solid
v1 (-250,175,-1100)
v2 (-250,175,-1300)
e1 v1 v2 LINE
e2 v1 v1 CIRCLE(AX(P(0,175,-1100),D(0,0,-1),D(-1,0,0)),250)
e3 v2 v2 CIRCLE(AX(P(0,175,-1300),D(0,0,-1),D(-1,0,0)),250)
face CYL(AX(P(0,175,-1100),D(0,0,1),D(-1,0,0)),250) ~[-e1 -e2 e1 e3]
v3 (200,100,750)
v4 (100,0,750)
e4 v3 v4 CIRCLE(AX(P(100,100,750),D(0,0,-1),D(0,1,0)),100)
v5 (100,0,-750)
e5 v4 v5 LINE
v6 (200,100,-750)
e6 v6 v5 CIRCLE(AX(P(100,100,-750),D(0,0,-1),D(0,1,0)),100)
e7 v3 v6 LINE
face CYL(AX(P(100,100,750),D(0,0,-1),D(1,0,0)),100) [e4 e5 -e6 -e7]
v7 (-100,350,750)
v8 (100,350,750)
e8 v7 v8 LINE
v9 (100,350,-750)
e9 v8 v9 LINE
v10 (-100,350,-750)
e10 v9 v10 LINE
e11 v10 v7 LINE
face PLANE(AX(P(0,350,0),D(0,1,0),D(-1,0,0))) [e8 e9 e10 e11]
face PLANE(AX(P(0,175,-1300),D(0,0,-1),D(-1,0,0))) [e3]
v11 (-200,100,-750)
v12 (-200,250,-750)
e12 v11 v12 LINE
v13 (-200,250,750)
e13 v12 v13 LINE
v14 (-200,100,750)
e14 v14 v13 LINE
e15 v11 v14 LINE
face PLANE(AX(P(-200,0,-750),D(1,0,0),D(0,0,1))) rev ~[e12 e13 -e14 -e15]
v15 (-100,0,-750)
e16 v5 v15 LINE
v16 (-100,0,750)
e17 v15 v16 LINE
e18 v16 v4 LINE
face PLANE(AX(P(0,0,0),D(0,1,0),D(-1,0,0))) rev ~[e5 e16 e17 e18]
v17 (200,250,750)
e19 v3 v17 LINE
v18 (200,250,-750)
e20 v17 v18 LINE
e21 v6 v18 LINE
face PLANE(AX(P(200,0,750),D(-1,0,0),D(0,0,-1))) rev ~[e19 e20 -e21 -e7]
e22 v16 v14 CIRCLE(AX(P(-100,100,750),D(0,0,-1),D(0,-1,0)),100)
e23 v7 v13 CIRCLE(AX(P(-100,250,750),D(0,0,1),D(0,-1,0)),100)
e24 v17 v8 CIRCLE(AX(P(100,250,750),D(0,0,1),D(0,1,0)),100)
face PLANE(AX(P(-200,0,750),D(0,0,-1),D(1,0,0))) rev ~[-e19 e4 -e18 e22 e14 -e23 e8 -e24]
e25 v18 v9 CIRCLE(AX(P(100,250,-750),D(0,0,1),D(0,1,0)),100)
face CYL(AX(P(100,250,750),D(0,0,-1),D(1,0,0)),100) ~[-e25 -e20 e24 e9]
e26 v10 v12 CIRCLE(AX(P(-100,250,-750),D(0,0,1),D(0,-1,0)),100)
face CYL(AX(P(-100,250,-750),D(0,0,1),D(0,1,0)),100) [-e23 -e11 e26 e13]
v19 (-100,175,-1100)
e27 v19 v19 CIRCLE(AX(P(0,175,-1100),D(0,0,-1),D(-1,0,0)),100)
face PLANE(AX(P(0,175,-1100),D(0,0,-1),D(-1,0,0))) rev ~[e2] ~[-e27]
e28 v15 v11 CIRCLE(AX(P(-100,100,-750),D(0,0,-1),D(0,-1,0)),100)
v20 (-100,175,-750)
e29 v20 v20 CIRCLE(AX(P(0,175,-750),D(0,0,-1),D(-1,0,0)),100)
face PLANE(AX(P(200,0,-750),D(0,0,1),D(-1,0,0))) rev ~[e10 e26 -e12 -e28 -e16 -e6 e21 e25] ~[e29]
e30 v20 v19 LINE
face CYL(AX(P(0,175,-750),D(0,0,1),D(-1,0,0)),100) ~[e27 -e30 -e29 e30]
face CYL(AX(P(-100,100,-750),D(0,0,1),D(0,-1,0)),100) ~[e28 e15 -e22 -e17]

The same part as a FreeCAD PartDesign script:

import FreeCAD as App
import Part
import Sketcher
from FreeCAD import Vector
Q = App.Units.Quantity


def edges_at(feature, points):
    """Names of the edges that pass closest to the given points."""
    edges = feature.Shape.Edges
    near = lambda p: min(range(len(edges)), key=lambda i: edges[i].distToShape(Part.Vertex(*p))[0])
    return sorted({f"Edge{near(p) + 1}" for p in points})


def add_polygon(sketch, points):
    """Adds a closed chain of lines whose ends are joined by coincident constraints."""
    first, n = sketch.GeometryCount, len(points)
    for a, b in zip(points, points[1:] + points[:1]):
        sketch.addGeometry(Part.LineSegment(App.Vector(*a, 0), App.Vector(*b, 0)), False)
    for i in range(n):
        sketch.addConstraint(Sketcher.Constraint("Coincident", first + i, 2, first + (i + 1) % n, 1))

doc = App.newDocument("Part")
params = doc.addObject("Spreadsheet::Sheet", "Params")
for row, (alias, value) in enumerate([
    ("sketch1_width", "400 mm"),
    ("sketch1_height", "1500 mm"),
    ("pad1_length", "350 mm"),
    ("sketch2_diameter", "200 mm"),
    ("pad2_length", "350 mm"),
    ("sketch3_diameter", "500 mm"),
    ("pad3_length", "200 mm"),
    ("fillet_radius", "100 mm"),
], start=1):
    params.set(f"A{row}", alias)
    params.set(f"B{row}", "=" + value)
    params.setAlias(f"B{row}", alias)

body = doc.addObject("PartDesign::Body", "Body")

sketch1 = body.newObject("Sketcher::SketchObject", "Sketch")
sketch1.AttachmentSupport = (doc.getObject("XZ_Plane"), [""])
sketch1.MapMode = "FlatFace"
add_polygon(sketch1, [(-200, -750), (-200, 750), (200, 750), (200, -750)])
sketch1.addConstraint(Sketcher.Constraint("Vertical", 0))
sketch1.addConstraint(Sketcher.Constraint("Horizontal", 1))
sketch1.addConstraint(Sketcher.Constraint("Vertical", 2))
sketch1.addConstraint(Sketcher.Constraint("Horizontal", 3))
sketch1.addConstraint(Sketcher.Constraint("Symmetric", 0, 2, 2, 2, -1, 1))
sketch1.addConstraint(Sketcher.Constraint("DistanceX", 1, 1, 1, 2, Q("400 mm")))
sketch1.addConstraint(Sketcher.Constraint("DistanceY", 0, 1, 0, 2, Q("1500 mm")))
sketch1.setExpression("Constraints[9]", "Params.sketch1_width")
sketch1.setExpression("Constraints[10]", "Params.sketch1_height")
pad1 = body.newObject("PartDesign::Pad", "Pad")
pad1.Profile = sketch1
pad1.setExpression("Length", "Params.pad1_length")
pad1.Reversed = True

sketch2 = body.newObject("Sketcher::SketchObject", "Sketch001")
sketch2.AttachmentSupport = (doc.getObject("XY_Plane"), [""])
sketch2.MapMode = "FlatFace"
sketch2.AttachmentOffset = App.Placement(Vector(0, 0, -750), App.Rotation())
sketch2.addGeometry(Part.Circle(Vector(0, 175, 0), Vector(0, 0, 1), 100), False)
sketch2.addConstraint(Sketcher.Constraint("PointOnObject", 0, 3, -2))
sketch2.addConstraint(Sketcher.Constraint("Diameter", 0, Q("200 mm")))
sketch2.addConstraint(Sketcher.Constraint("DistanceY", -1, 1, 0, 3, Q("175 mm")))
sketch2.setExpression("Constraints[1]", "Params.sketch2_diameter")
pad2 = body.newObject("PartDesign::Pad", "Pad001")
pad2.Profile = sketch2
pad2.setExpression("Length", "Params.pad2_length")
pad2.Reversed = True

sketch3 = body.newObject("Sketcher::SketchObject", "Sketch002")
sketch3.AttachmentSupport = (doc.getObject("XY_Plane"), [""])
sketch3.MapMode = "FlatFace"
sketch3.AttachmentOffset = App.Placement(Vector(0, 0, -1100), App.Rotation())
sketch3.addGeometry(Part.Circle(Vector(0, 175, 0), Vector(0, 0, 1), 250), False)
sketch3.addConstraint(Sketcher.Constraint("PointOnObject", 0, 3, -2))
sketch3.addConstraint(Sketcher.Constraint("Diameter", 0, Q("500 mm")))
sketch3.addConstraint(Sketcher.Constraint("DistanceY", -1, 1, 0, 3, Q("175 mm")))
sketch3.setExpression("Constraints[1]", "Params.sketch3_diameter")
pad3 = body.newObject("PartDesign::Pad", "Pad002")
pad3.Profile = sketch3
pad3.setExpression("Length", "Params.pad3_length")
pad3.Reversed = True
doc.recompute()

fillet = body.newObject("PartDesign::Fillet", "Fillet")
fillet.Base = (pad3, edges_at(pad3, [
    (200, 350, 0),
    (-200, 350, 0),
    (200, 0, 0),
    (-200, 0, 0),
]))
fillet.setExpression("Radius", "Params.fillet_radius")

doc.recompute()
